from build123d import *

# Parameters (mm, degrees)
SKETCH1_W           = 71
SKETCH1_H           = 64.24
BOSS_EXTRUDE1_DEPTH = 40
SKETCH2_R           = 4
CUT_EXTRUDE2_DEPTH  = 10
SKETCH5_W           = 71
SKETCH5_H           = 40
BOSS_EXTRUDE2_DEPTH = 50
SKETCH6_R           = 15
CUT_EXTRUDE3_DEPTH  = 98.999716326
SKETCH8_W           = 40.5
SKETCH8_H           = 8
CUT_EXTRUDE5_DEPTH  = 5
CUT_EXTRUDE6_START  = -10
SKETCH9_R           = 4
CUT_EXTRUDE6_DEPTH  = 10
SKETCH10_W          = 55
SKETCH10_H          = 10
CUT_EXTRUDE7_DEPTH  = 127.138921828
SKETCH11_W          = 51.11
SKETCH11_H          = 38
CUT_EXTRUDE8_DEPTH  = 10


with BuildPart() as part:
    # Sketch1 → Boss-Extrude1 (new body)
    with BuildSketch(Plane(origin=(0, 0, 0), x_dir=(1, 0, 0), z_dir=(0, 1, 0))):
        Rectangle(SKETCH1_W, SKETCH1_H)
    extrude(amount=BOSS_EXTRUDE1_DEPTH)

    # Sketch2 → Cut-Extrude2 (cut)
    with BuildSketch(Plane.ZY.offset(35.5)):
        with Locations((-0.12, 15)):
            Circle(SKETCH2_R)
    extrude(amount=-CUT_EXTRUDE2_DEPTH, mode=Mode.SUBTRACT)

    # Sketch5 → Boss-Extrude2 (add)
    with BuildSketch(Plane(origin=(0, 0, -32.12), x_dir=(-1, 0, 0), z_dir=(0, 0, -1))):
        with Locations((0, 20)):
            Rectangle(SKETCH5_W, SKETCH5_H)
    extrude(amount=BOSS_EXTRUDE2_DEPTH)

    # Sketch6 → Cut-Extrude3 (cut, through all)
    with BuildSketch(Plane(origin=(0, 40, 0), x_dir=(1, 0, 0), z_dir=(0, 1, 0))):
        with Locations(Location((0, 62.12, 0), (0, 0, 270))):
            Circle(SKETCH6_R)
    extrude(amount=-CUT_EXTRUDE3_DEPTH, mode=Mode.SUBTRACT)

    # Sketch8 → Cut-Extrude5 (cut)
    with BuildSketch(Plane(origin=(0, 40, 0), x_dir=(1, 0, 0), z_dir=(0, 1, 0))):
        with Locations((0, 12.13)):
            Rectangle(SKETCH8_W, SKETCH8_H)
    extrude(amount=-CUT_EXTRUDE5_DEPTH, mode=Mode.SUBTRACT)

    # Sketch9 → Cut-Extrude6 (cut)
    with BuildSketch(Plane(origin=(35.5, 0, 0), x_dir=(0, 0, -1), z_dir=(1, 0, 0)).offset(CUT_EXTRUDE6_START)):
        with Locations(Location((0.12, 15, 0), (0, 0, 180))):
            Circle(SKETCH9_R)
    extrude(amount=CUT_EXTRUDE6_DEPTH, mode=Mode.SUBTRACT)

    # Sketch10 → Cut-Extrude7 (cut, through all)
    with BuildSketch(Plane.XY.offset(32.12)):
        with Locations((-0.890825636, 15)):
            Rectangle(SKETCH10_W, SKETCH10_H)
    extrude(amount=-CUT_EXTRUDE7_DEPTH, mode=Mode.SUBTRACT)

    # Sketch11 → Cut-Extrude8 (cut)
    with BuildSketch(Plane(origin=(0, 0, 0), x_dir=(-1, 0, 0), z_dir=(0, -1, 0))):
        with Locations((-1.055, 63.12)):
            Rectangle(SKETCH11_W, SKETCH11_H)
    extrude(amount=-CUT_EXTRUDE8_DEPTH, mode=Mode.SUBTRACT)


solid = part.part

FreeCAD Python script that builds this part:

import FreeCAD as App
import Part
import Sketcher
from FreeCAD import Vector


def add_polygon(sketch, points):
    """Adds a closed chain of lines whose ends are joined by coincident constraints."""
    first, n = sketch.GeometryCount, len(points)
    for a, b in zip(points, points[1:] + points[:1]):
        sketch.addGeometry(Part.LineSegment(App.Vector(*a, 0), App.Vector(*b, 0)), False)
    for i in range(n):
        sketch.addConstraint(Sketcher.Constraint("Coincident", first + i, 2, first + (i + 1) % n, 1))

doc = App.newDocument("Part")
body = doc.addObject("PartDesign::Body", "Body")

# Sketch on XZ plane
sketch1 = doc.addObject("Sketcher::SketchObject", "Sketch")
body.addObject(sketch1)
sketch1.AttachmentSupport = (doc.XZ_Plane, [""])
sketch1.MapMode = "FlatFace"
add_polygon(sketch1, [(-36, -32), (-36, 32), (36, 32), (36, -32)])  # lines 0-3
sketch1.addConstraint([
    Sketcher.Constraint("Vertical", 0),
    Sketcher.Constraint("Horizontal", 1),
    Sketcher.Constraint("Vertical", 2),
    Sketcher.Constraint("Horizontal", 3),
    Sketcher.Constraint("Symmetric", 0, 2, 2, 2, -1, 1),
    Sketcher.Constraint("DistanceX", 1, 1, 1, 2, 71.0),
    Sketcher.Constraint("DistanceY", 0, 1, 0, 2, 64.24),
])
pad1 = doc.addObject("PartDesign::Pad", "Pad")
body.addObject(pad1)
pad1.Profile = sketch1
pad1.Length = 40
pad1.Reversed = True

# Sketch on YZ plane
sketch2 = doc.addObject("Sketcher::SketchObject", "Sketch001")
body.addObject(sketch2)
sketch2.AttachmentSupport = (doc.YZ_Plane, [""])
sketch2.MapMode = "FlatFace"
sketch2.AttachmentOffset = App.Placement(Vector(0, 0, -35.5), App.Rotation())
sketch2.addGeometry(Part.Circle(Vector(15, -0.1, 0), Vector(0, 0, 1), 4), False)
sketch2.addConstraint([
    Sketcher.Constraint("Diameter", 0, 8.0),
    Sketcher.Constraint("DistanceX", -1, 1, 0, 3, 15.0),
    Sketcher.Constraint("DistanceY", 0, 3, -1, 1, 0.12),
])
pocket1 = doc.addObject("PartDesign::Pocket", "Pocket")
body.addObject(pocket1)
pocket1.Profile = sketch2
pocket1.Length = 10
pocket1.Reversed = True

# Sketch on XY plane
sketch3 = doc.addObject("Sketcher::SketchObject", "Sketch002")
body.addObject(sketch3)
sketch3.AttachmentSupport = (doc.XY_Plane, [""])
sketch3.MapMode = "FlatFace"
sketch3.AttachmentOffset = App.Placement(Vector(0, 0, -32.12), App.Rotation())
add_polygon(sketch3, [(36, 40), (36, 0), (-36, 0), (-36, 40)])  # lines 0-3
sketch3.addConstraint([
    Sketcher.Constraint("Vertical", 0),
    Sketcher.Constraint("Horizontal", 1),
    Sketcher.Constraint("Vertical", 2),
    Sketcher.Constraint("Horizontal", 3),
    Sketcher.Constraint("Symmetric", 0, 2, 1, 2, -1, 1),
    Sketcher.Constraint("DistanceX", 1, 2, 1, 1, 71.0),
    Sketcher.Constraint("DistanceY", 0, 2, 0, 1, 40.0),
])
pad2 = doc.addObject("PartDesign::Pad", "Pad001")
body.addObject(pad2)
pad2.Profile = sketch3
pad2.Length = 50
pad2.Reversed = True

# Sketch on XZ plane
sketch4 = doc.addObject("Sketcher::SketchObject", "Sketch003")
body.addObject(sketch4)
sketch4.AttachmentSupport = (doc.XZ_Plane, [""])
sketch4.MapMode = "FlatFace"
sketch4.AttachmentOffset = App.Placement(Vector(0, 0, -40), App.Rotation())
sketch4.addGeometry(Part.Circle(Vector(0, -62, 0), Vector(0, 0, 1), 15), False)
sketch4.addConstraint([
    Sketcher.Constraint("PointOnObject", 0, 3, -2),
    Sketcher.Constraint("Diameter", 0, 30.0),
    Sketcher.Constraint("DistanceY", 0, 3, -1, 1, 62.12),
])
pocket2 = doc.addObject("PartDesign::Pocket", "Pocket001")
body.addObject(pocket2)
pocket2.Profile = sketch4
pocket2.Type = "ThroughAll"
pocket2.Reversed = True

# Sketch on XZ plane
sketch5 = doc.addObject("Sketcher::SketchObject", "Sketch004")
body.addObject(sketch5)
sketch5.AttachmentSupport = (doc.XZ_Plane, [""])
sketch5.MapMode = "FlatFace"
sketch5.AttachmentOffset = App.Placement(Vector(0, 0, -40), App.Rotation())
add_polygon(sketch5, [(-20, -16), (-20, -8), (20, -8), (20, -16)])  # lines 0-3
sketch5.addConstraint([
    Sketcher.Constraint("Vertical", 0),
    Sketcher.Constraint("Horizontal", 1),
    Sketcher.Constraint("Vertical", 2),
    Sketcher.Constraint("Horizontal", 3),
    Sketcher.Constraint("DistanceY", 0, 1, 0, 2, 8.0),
    Sketcher.Constraint("DistanceX", 1, 1, 1, 2, 40.5),
    Sketcher.Constraint("DistanceX", 0, 2, -1, 1, 20.25),
    Sketcher.Constraint("DistanceY", 0, 2, -1, 1, 8.13),
])
pocket3 = doc.addObject("PartDesign::Pocket", "Pocket002")
body.addObject(pocket3)
pocket3.Profile = sketch5
pocket3.Length = 5
pocket3.Reversed = True

# Sketch on YZ plane
sketch6 = doc.addObject("Sketcher::SketchObject", "Sketch005")
body.addObject(sketch6)
sketch6.AttachmentSupport = (doc.YZ_Plane, [""])
sketch6.MapMode = "FlatFace"
sketch6.AttachmentOffset = App.Placement(Vector(0, 0, 25.5), App.Rotation())
sketch6.addGeometry(Part.Circle(Vector(15, -0.1, 0), Vector(0, 0, 1), 4), False)
sketch6.addConstraint([
    Sketcher.Constraint("Diameter", 0, 8.0),
    Sketcher.Constraint("DistanceX", -1, 1, 0, 3, 15.0),
    Sketcher.Constraint("DistanceY", 0, 3, -1, 1, 0.12),
])
pocket4 = doc.addObject("PartDesign::Pocket", "Pocket003")
body.addObject(pocket4)
pocket4.Profile = sketch6
pocket4.Length = 10
pocket4.Reversed = True

# Sketch on XY plane
sketch7 = doc.addObject("Sketcher::SketchObject", "Sketch006")
body.addObject(sketch7)
sketch7.AttachmentSupport = (doc.XY_Plane, [""])
sketch7.MapMode = "FlatFace"
sketch7.AttachmentOffset = App.Placement(Vector(0, 0, 32.12), App.Rotation())
add_polygon(sketch7, [(-28, 20), (-28, 10), (27, 10), (27, 20)])  # lines 0-3
sketch7.addConstraint([
    Sketcher.Constraint("Vertical", 0),
    Sketcher.Constraint("Horizontal", 1),
    Sketcher.Constraint("Vertical", 2),
    Sketcher.Constraint("Horizontal", 3),
    Sketcher.Constraint("DistanceX", 1, 1, 1, 2, 55.0),
    Sketcher.Constraint("DistanceY", 0, 2, 0, 1, 10.0),
    Sketcher.Constraint("DistanceY", -1, 1, 0, 2, 10.0),
    Sketcher.Constraint("DistanceX", 0, 2, -1, 1, 28.390826),
])
pocket5 = doc.addObject("PartDesign::Pocket", "Pocket004")
body.addObject(pocket5)
pocket5.Profile = sketch7
pocket5.Type = "ThroughAll"

# Sketch on XZ plane
sketch8 = doc.addObject("Sketcher::SketchObject", "Sketch007")
body.addObject(sketch8)
sketch8.AttachmentSupport = (doc.XZ_Plane, [""])
sketch8.MapMode = "FlatFace"
add_polygon(sketch8, [(27, -82), (27, -44), (-24, -44), (-24, -82)])  # lines 0-3
sketch8.addConstraint([
    Sketcher.Constraint("Vertical", 0),
    Sketcher.Constraint("Horizontal", 1),
    Sketcher.Constraint("Vertical", 2),
    Sketcher.Constraint("Horizontal", 3),
    Sketcher.Constraint("DistanceY", 0, 1, 0, 2, 38.0),
    Sketcher.Constraint("DistanceX", 1, 2, 1, 1, 51.11),
    Sketcher.Constraint("DistanceX", 1, 2, -1, 1, 24.5),
    Sketcher.Constraint("DistanceY", 0, 2, -1, 1, 44.12),
])
pocket6 = doc.addObject("PartDesign::Pocket", "Pocket005")
body.addObject(pocket6)
pocket6.Profile = sketch8
pocket6.Length = 10

doc.recompute()
